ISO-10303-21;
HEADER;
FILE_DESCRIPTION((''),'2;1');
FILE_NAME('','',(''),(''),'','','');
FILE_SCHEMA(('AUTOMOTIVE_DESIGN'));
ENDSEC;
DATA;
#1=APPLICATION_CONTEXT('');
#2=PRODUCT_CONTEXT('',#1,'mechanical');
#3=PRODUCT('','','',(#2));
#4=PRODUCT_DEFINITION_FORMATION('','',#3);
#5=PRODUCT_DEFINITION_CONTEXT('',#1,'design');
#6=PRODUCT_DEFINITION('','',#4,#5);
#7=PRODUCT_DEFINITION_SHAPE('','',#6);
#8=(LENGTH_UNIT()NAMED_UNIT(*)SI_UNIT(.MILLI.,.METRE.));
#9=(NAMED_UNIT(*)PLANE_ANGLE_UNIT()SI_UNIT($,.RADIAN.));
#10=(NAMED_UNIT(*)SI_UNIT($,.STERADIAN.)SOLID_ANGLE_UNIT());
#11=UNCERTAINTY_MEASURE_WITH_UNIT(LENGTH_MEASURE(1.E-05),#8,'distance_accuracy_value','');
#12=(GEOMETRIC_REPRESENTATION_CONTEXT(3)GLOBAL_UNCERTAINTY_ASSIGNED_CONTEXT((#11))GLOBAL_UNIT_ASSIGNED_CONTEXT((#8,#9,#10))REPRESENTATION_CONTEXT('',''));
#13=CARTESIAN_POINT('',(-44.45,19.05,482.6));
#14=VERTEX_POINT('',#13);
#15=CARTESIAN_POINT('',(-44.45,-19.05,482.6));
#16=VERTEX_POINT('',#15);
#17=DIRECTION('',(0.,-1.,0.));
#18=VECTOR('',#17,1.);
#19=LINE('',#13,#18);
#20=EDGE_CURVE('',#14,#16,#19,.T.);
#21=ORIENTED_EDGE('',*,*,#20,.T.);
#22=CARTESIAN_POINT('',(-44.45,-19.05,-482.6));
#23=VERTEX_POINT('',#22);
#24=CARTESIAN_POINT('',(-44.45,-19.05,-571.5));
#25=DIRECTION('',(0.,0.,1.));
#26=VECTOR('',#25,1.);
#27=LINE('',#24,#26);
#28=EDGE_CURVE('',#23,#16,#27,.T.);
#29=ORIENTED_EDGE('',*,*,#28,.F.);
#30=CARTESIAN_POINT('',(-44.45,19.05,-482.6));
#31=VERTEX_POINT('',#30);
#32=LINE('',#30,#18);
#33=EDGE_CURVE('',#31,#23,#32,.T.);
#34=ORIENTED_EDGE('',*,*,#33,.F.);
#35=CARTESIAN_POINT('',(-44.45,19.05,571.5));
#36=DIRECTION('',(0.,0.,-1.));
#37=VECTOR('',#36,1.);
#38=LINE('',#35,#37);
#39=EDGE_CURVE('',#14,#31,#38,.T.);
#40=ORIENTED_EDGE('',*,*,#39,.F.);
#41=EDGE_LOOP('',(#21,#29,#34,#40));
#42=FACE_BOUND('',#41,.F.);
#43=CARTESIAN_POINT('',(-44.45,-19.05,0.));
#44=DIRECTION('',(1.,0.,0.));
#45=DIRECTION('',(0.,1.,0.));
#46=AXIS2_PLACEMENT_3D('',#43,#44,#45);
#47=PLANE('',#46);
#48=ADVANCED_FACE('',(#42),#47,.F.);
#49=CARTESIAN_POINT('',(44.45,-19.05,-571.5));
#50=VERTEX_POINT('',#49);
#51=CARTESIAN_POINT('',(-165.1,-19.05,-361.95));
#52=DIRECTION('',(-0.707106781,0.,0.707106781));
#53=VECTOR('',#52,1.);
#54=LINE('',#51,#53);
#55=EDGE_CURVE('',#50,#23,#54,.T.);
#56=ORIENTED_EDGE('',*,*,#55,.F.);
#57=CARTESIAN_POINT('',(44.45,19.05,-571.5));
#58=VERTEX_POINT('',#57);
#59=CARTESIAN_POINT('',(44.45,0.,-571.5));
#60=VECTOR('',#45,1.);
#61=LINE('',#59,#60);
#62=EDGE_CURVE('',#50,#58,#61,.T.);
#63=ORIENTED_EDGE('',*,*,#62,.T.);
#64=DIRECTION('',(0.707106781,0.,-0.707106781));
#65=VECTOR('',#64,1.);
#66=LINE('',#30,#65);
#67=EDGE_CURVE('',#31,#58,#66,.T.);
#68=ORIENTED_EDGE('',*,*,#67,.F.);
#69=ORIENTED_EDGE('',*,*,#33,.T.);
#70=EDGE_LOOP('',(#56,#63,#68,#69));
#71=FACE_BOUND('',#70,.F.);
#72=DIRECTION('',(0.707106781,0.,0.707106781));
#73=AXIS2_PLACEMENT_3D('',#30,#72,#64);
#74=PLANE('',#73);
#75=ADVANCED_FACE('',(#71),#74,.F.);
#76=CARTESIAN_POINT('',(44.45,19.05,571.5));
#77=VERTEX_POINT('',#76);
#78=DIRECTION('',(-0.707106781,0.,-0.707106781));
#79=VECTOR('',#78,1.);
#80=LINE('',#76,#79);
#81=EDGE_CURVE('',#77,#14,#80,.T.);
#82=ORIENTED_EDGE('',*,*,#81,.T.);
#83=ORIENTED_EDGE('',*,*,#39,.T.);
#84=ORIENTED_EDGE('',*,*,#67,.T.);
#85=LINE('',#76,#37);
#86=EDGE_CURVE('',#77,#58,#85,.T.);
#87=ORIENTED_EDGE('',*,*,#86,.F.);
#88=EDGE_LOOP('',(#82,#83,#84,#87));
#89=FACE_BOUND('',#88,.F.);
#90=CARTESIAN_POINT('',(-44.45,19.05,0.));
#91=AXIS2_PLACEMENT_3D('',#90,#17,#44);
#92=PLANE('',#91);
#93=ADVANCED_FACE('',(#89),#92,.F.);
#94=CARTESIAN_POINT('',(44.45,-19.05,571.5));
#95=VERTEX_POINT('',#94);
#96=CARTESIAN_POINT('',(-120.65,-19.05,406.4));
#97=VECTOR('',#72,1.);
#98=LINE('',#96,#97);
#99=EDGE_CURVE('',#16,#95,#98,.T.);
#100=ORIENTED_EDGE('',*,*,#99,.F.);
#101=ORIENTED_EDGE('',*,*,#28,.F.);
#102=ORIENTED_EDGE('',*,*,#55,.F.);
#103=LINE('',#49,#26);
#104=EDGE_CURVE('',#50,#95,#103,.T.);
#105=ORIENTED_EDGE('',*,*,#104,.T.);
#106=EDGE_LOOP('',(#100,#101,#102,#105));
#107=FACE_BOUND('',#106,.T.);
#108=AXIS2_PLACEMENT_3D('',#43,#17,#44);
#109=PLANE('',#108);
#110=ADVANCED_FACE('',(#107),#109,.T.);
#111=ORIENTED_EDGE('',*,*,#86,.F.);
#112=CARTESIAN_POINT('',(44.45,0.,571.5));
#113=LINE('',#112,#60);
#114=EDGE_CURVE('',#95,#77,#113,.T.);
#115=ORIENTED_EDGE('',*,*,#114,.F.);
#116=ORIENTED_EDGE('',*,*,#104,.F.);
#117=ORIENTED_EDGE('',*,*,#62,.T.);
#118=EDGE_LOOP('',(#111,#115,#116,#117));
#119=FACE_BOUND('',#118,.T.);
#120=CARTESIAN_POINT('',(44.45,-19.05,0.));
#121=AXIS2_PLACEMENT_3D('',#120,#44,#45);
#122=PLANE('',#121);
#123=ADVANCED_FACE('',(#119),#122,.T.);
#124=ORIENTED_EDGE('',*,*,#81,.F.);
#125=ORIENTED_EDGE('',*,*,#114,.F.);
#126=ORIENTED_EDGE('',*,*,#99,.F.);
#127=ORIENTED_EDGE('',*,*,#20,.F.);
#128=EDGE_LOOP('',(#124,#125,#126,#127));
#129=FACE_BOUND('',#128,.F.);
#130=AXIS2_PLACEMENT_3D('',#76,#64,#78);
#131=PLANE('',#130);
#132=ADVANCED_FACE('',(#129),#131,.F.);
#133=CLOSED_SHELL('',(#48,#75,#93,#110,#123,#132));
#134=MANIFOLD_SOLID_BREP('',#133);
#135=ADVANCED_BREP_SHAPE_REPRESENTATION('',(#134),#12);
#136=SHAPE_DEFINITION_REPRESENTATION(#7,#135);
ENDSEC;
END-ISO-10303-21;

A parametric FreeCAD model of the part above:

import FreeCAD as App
import Part
import Sketcher
from FreeCAD import Vector
Q = App.Units.Quantity


def add_polygon(sketch, points):
    """Adds a closed chain of lines whose ends are joined by coincident constraints."""
    first, n = sketch.GeometryCount, len(points)
    for a, b in zip(points, points[1:] + points[:1]):
        sketch.addGeometry(Part.LineSegment(App.Vector(*a, 0), App.Vector(*b, 0)), False)
    for i in range(n):
        sketch.addConstraint(Sketcher.Constraint("Coincident", first + i, 2, first + (i + 1) % n, 1))

doc = App.newDocument("Part")
params = doc.addObject("Spreadsheet::Sheet", "Params")
for row, (alias, value) in enumerate([
    ("sketch1_width", "3.5 in"),
    ("sketch1_height", "1.5 in"),
    ("pad1_length", "45 in"),
    ("sketch2_width", "3.5 in"),
], start=1):
    params.set(f"A{row}", alias)
    params.set(f"B{row}", "=" + value)
    params.setAlias(f"B{row}", alias)

body = doc.addObject("PartDesign::Body", "Body")

sketch1 = body.newObject("Sketcher::SketchObject", "Sketch")
sketch1.AttachmentSupport = (doc.getObject("XY_Plane"), [""])
sketch1.MapMode = "FlatFace"
add_polygon(sketch1, [(-44, 19), (-44, -19), (44, -19), (44, 19)])
sketch1.addConstraint(Sketcher.Constraint("Vertical", 0))
sketch1.addConstraint(Sketcher.Constraint("Horizontal", 1))
sketch1.addConstraint(Sketcher.Constraint("Vertical", 2))
sketch1.addConstraint(Sketcher.Constraint("Horizontal", 3))
sketch1.addConstraint(Sketcher.Constraint("Symmetric", 0, 2, 2, 2, -1, 1))
sketch1.addConstraint(Sketcher.Constraint("DistanceX", 1, 1, 1, 2, Q("3.5 in")))
sketch1.addConstraint(Sketcher.Constraint("DistanceY", 0, 2, 0, 1, Q("1.5 in")))
sketch1.setExpression("Constraints[9]", "Params.sketch1_width")
sketch1.setExpression("Constraints[10]", "Params.sketch1_height")
pad1 = body.newObject("PartDesign::Pad", "Pad")
pad1.Profile = sketch1
pad1.setExpression("Length", "Params.pad1_length")
pad1.Midplane = True

sketch2 = body.newObject("Sketcher::SketchObject", "Sketch001")
sketch2.AttachmentSupport = (doc.getObject("XZ_Plane"), [""])
sketch2.MapMode = "FlatFace"
sketch2.AttachmentOffset = App.Placement(Vector(0, 0, -0.75 * 25.4), App.Rotation())
add_polygon(sketch2, [(-44, 572), (44, 572), (-44, 483)])
add_polygon(sketch2, [(-44, -483), (44, -572), (-44, -572)])
sketch2.addConstraint(Sketcher.Constraint("Horizontal", 0))
sketch2.addConstraint(Sketcher.Constraint("Vertical", 2))
sketch2.addConstraint(Sketcher.Constraint("Horizontal", 4))
sketch2.addConstraint(Sketcher.Constraint("Vertical", 5))
sketch2.addConstraint(Sketcher.Constraint("Symmetric", 2, 2, 3, 2, -1, 1))
sketch2.addConstraint(Sketcher.Constraint("Symmetric", 1, 2, 5, 2, -1))
sketch2.addConstraint(Sketcher.Constraint("Perpendicular", 1, 3))
sketch2.addConstraint(Sketcher.Constraint("Vertical", 0, 2, 3, 2))
sketch2.addConstraint(Sketcher.Constraint("DistanceX", 0, 1, 0, 2, Q("3.5 in")))
sketch2.addConstraint(Sketcher.Constraint("DistanceY", -1, 1, 1, 2, Q("19 in")))
sketch2.setExpression("Constraints[14]", "Params.sketch2_width")
pocket1 = body.newObject("PartDesign::Pocket", "Pocket")
pocket1.Profile = sketch2
pocket1.Type = "ThroughAll"
pocket1.Reversed = True

doc.recompute()
